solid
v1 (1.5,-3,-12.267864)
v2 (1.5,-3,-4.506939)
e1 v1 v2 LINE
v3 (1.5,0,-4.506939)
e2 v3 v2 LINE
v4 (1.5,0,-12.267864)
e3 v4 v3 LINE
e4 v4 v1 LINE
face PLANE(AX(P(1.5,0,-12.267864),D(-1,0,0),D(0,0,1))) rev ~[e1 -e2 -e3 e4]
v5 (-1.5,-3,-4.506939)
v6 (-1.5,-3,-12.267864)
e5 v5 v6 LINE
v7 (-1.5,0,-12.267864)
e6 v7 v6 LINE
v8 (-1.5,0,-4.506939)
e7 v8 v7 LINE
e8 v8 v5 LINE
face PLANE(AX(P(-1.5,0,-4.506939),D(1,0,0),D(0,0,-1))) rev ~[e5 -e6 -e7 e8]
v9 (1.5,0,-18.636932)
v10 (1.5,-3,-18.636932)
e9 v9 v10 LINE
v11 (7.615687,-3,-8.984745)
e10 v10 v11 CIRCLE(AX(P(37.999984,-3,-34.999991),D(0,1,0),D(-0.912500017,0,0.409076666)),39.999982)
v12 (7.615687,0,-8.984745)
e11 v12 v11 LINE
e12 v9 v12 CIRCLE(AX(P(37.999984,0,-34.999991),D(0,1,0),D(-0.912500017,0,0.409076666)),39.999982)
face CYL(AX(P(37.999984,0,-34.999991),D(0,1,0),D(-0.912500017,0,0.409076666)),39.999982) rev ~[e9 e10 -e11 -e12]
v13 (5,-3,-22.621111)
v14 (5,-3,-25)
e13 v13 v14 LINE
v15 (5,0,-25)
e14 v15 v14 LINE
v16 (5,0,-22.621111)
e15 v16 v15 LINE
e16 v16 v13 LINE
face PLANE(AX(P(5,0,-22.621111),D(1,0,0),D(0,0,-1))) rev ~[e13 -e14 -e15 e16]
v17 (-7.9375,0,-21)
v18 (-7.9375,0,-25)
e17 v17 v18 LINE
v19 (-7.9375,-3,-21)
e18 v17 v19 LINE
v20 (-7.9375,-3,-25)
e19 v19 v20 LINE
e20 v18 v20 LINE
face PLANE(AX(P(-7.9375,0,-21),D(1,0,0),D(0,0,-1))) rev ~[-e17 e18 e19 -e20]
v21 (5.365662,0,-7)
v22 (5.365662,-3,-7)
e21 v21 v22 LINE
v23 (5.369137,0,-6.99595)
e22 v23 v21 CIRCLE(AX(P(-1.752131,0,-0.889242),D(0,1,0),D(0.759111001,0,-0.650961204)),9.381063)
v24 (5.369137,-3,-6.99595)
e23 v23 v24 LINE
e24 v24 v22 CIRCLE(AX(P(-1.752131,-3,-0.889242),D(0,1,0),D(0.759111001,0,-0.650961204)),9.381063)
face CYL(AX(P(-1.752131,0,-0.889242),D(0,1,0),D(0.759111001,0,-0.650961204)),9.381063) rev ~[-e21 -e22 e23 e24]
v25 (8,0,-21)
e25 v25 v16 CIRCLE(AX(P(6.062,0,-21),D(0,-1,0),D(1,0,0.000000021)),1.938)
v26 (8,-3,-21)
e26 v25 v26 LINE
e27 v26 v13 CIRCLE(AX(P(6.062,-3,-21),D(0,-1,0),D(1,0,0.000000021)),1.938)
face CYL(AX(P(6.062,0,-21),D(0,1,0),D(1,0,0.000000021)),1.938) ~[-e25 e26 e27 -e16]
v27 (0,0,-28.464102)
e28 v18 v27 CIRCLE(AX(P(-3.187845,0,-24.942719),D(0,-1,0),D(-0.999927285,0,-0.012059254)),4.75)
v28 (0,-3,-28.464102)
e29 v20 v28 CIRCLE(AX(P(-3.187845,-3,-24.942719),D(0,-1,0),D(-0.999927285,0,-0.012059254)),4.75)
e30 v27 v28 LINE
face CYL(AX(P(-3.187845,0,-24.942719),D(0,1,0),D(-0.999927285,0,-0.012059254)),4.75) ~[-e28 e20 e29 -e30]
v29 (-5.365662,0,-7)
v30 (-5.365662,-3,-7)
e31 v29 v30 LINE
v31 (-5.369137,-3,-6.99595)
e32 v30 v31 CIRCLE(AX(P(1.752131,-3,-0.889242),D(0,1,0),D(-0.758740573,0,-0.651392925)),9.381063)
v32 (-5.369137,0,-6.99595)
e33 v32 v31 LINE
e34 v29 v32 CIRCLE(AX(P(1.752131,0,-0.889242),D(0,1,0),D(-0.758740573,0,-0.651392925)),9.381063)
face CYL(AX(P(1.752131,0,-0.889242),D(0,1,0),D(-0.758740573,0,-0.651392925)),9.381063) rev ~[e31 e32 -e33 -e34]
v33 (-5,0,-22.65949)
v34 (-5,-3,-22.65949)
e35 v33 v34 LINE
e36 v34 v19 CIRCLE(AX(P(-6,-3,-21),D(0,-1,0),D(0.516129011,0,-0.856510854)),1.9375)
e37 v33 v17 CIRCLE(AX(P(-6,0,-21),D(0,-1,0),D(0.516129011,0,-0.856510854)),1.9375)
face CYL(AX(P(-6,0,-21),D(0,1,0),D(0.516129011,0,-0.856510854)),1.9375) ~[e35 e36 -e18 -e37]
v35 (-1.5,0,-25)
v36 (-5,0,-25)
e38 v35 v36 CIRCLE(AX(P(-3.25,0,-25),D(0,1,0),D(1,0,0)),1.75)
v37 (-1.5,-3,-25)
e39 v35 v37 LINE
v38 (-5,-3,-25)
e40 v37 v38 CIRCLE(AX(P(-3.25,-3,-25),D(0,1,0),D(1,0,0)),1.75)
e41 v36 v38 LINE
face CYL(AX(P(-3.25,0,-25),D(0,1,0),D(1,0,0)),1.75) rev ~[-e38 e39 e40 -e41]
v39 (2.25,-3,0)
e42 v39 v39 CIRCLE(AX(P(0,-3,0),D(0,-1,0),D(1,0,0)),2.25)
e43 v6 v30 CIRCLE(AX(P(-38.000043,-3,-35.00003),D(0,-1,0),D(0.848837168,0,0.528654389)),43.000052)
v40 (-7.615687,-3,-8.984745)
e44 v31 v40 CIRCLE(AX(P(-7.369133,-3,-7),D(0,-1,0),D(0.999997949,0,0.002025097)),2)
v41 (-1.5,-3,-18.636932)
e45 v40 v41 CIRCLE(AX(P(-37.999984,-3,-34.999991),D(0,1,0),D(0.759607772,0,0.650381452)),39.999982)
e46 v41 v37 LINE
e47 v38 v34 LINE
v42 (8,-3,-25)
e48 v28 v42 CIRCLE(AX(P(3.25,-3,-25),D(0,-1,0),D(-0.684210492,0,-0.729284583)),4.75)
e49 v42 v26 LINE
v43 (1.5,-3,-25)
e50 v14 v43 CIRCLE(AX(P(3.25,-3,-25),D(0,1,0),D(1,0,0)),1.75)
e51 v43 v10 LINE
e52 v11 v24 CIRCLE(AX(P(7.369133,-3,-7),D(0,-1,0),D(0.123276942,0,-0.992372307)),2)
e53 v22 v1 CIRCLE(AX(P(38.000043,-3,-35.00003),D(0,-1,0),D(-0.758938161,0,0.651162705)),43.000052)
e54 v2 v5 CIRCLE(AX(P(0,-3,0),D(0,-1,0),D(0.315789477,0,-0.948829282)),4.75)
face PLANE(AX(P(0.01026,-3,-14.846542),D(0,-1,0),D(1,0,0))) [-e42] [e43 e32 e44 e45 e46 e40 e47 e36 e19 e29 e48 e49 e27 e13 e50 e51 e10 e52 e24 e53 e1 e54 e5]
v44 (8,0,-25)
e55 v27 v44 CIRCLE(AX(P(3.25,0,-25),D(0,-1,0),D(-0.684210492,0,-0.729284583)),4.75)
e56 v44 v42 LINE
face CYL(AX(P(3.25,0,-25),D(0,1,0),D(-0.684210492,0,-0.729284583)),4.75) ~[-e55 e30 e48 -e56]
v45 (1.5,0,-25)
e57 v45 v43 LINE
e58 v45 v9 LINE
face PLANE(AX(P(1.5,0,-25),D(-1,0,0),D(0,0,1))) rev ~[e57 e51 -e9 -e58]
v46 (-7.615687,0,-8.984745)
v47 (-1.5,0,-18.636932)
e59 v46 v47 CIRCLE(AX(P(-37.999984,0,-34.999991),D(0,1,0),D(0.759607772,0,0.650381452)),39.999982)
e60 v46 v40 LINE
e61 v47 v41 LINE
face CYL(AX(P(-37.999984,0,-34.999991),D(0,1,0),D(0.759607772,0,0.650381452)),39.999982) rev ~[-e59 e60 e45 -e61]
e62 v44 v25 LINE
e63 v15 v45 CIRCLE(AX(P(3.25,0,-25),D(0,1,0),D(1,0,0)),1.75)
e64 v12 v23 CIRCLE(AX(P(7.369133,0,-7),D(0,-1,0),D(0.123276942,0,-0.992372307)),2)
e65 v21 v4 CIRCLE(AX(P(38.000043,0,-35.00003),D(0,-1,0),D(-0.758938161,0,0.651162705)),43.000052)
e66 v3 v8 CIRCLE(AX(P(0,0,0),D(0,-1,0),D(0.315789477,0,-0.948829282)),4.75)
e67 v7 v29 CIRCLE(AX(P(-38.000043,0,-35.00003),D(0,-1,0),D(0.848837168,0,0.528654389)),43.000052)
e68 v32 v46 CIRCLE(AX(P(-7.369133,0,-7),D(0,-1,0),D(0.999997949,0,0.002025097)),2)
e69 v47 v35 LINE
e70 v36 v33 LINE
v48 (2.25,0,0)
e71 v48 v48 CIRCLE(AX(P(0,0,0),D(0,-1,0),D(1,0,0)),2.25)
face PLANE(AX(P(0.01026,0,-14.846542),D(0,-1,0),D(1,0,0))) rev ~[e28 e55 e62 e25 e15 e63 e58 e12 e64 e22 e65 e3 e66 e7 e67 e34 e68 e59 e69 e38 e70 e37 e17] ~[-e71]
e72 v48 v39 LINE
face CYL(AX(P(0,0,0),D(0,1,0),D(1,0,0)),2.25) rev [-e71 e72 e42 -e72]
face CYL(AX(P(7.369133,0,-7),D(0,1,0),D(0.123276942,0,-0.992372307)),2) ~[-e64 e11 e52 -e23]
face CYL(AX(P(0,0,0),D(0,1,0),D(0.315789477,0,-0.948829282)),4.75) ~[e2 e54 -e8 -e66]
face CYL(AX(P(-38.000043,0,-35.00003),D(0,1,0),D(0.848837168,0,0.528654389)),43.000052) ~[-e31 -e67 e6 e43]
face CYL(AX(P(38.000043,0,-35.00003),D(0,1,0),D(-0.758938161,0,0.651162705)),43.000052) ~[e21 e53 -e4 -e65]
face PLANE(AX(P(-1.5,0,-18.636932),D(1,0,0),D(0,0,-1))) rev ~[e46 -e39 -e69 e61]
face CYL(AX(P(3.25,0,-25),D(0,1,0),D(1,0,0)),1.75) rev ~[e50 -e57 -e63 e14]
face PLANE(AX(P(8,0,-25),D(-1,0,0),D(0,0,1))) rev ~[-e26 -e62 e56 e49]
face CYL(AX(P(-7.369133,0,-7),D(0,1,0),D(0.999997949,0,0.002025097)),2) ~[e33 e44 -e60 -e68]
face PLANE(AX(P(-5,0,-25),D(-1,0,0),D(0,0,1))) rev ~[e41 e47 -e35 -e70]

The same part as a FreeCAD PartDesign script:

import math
import FreeCAD as App
import Part
import Sketcher

V = App.Vector

doc = App.newDocument("Part")
params = doc.addObject("Spreadsheet::Sheet", "Params")
for row, (alias, value) in enumerate([
    ("sketch1_radius", "2 mm"),
    ("sketch1_diameter", "4.5 mm"),
    ("sketch1_height", "4 mm"),
    ("sketch1_radius2", "4.75 mm"),
    ("sketch1_radius3", "1.75 mm"),
    ("pad1_length", "3 mm"),
], start=1):
    params.set(f"A{row}", alias)
    params.set(f"B{row}", "=" + value)
    params.setAlias(f"B{row}", alias)

body = doc.addObject("PartDesign::Body", "Body")

# Sketch on XZ plane
sketch1 = doc.addObject("Sketcher::SketchObject", "Sketch")
body.addObject(sketch1)
sketch1.AttachmentSupport = (doc.XZ_Plane, [""])
sketch1.MapMode = "FlatFace"
sketch1.addGeometry([
    Part.LineSegment(V(1.5, -12.268, 0), V(1.5, -4.507, 0)),  # 0
    Part.ArcOfCircle(Part.Circle(V(0, 0, 0), V(0, 0, 1), 4.75), math.radians(-72), math.radians(252)),  # 1
    Part.LineSegment(V(-1.5, -4.507, 0), V(-1.5, -12.268, 0)),  # 2
    Part.ArcOfCircle(Part.Circle(V(-38, -35, 0), V(0, 0, 1), 43), math.radians(31.91), math.radians(40.63)),  # 3
    Part.ArcOfCircle(Part.Circle(V(1.752, -0.889, 0), V(0, 0, 1), 9.381), math.radians(-139.39), math.radians(-139.35)),  # 4
    Part.ArcOfCircle(Part.Circle(V(-7.369, -7, 0), V(0, 0, 1), 2), math.radians(0), math.radians(263)),  # 5
    Part.ArcOfCircle(Part.Circle(V(-38, -35, 0), V(0, 0, 1), 40), math.radians(24.15), math.radians(40.57)),  # 6
    Part.LineSegment(V(-1.5, -18.637, 0), V(-1.5, -25, 0)),  # 7
    Part.ArcOfCircle(Part.Circle(V(-3.25, -25, 0), V(0, 0, 1), 1.75), math.radians(180), math.radians(360)),  # 8
    Part.LineSegment(V(-5, -25, 0), V(-5, -22.659, 0)),  # 9
    Part.ArcOfCircle(Part.Circle(V(-6, -21, 0), V(0, 0, 1), 1.938), math.radians(-59), math.radians(180)),  # 10
    Part.LineSegment(V(-7.938, -21, 0), V(-7.938, -25, 0)),  # 11
    Part.ArcOfCircle(Part.Circle(V(-3.188, -24.943, 0), V(0, 0, 1), 4.75), math.radians(-179), math.radians(-48)),  # 12
    Part.ArcOfCircle(Part.Circle(V(3.25, -25, 0), V(0, 0, 1), 4.75), math.radians(-133), math.radians(0)),  # 13
    Part.LineSegment(V(8, -25, 0), V(8, -21, 0)),  # 14
    Part.ArcOfCircle(Part.Circle(V(6.062, -21, 0), V(0, 0, 1), 1.938), math.radians(0), math.radians(237)),  # 15
    Part.LineSegment(V(5, -22.621, 0), V(5, -25, 0)),  # 16
    Part.ArcOfCircle(Part.Circle(V(3.25, -25, 0), V(0, 0, 1), 1.75), math.radians(180), math.radians(360)),  # 17
    Part.LineSegment(V(1.5, -25, 0), V(1.5, -18.637, 0)),  # 18
    Part.ArcOfCircle(Part.Circle(V(38, -35, 0), V(0, 0, 1), 40), math.radians(139.43), math.radians(155.85)),  # 19
    Part.ArcOfCircle(Part.Circle(V(7.369, -7, 0), V(0, 0, 1), 2), math.radians(-83), math.radians(180)),  # 20
    Part.ArcOfCircle(Part.Circle(V(-1.752, -0.889, 0), V(0, 0, 1), 9.381), math.radians(-40.65), math.radians(-40.61)),  # 21
    Part.ArcOfCircle(Part.Circle(V(38, -35, 0), V(0, 0, 1), 43), math.radians(139.37), math.radians(148.09)),  # 22
    Part.Circle(V(0, 0, 0), V(0, 0, 1), 2.25),  # 23
], False)
sketch1.addConstraint([
    Sketcher.Constraint("Coincident", 0, 2, 1, 1),
    Sketcher.Constraint("Coincident", 1, 2, 2, 1),
    Sketcher.Constraint("Coincident", 2, 2, 3, 1),
    Sketcher.Constraint("Coincident", 3, 2, 4, 2),
    Sketcher.Constraint("Coincident", 4, 1, 5, 1),
    Sketcher.Constraint("Coincident", 5, 2, 6, 2),
    Sketcher.Constraint("Coincident", 6, 1, 7, 1),
    Sketcher.Constraint("Tangent", 7, 2, 8, 2),
    Sketcher.Constraint("Tangent", 8, 1, 9, 1),
    Sketcher.Constraint("Coincident", 9, 2, 10, 1),
    Sketcher.Constraint("Tangent", 10, 2, 11, 1),
    Sketcher.Constraint("Coincident", 11, 2, 12, 1),
    Sketcher.Constraint("Coincident", 12, 2, 13, 1),
    Sketcher.Constraint("Tangent", 13, 2, 14, 1),
    Sketcher.Constraint("Tangent", 14, 2, 15, 1),
    Sketcher.Constraint("Coincident", 15, 2, 16, 1),
    Sketcher.Constraint("Tangent", 16, 2, 17, 2),
    Sketcher.Constraint("Tangent", 17, 1, 18, 1),
    Sketcher.Constraint("Coincident", 18, 2, 19, 2),
    Sketcher.Constraint("Coincident", 19, 1, 20, 1),
    Sketcher.Constraint("Coincident", 20, 2, 21, 2),
    Sketcher.Constraint("Coincident", 21, 1, 22, 1),
    Sketcher.Constraint("Coincident", 22, 2, 0, 1),
    Sketcher.Constraint("Vertical", 0),
    Sketcher.Constraint("Vertical", 2),
    Sketcher.Constraint("Vertical", 7),
    Sketcher.Constraint("Vertical", 9),
    Sketcher.Constraint("Vertical", 11),
    Sketcher.Constraint("Vertical", 14),
    Sketcher.Constraint("Vertical", 16),
    Sketcher.Constraint("Vertical", 18),
    Sketcher.Constraint("Coincident", 1, 3, -1, 1),
    Sketcher.Constraint("Coincident", 23, 3, -1, 1),
    Sketcher.Constraint("Coincident", 17, 3, 13, 3),
    Sketcher.Constraint("Equal", 1, 12),
    Sketcher.Constraint("Equal", 12, 13),
    Sketcher.Constraint("Equal", 8, 17),
    Sketcher.Constraint("Equal", 6, 19),
    Sketcher.Constraint("Equal", 5, 20),
    Sketcher.Constraint("Equal", 4, 21),
    Sketcher.Constraint("Equal", 3, 22),
    Sketcher.Constraint("Symmetric", 8, 3, 13, 3, -2),
    Sketcher.Constraint("Symmetric", 6, 3, 19, 3, -2),
    Sketcher.Constraint("Symmetric", 5, 3, 20, 3, -2),
    Sketcher.Constraint("Symmetric", 4, 3, 21, 3, -2),
    Sketcher.Constraint("Symmetric", 3, 3, 22, 3, -2),
    Sketcher.Constraint("PointOnObject", 12, 2, -2),
    Sketcher.Constraint("Horizontal", 10, 3, 15, 3),
    Sketcher.Constraint("Horizontal", 0, 2, 1, 2),
    Sketcher.Constraint("Horizontal", 20, 3, 3, 2),
    Sketcher.Constraint("Horizontal", 8, 1, 11, 2),
    Sketcher.Constraint("Vertical", 2, 2, 6, 1),
    Sketcher.Constraint("Radius", 5, 2.0),
    Sketcher.Constraint("Diameter", 23, 4.5),
    Sketcher.Constraint("DistanceY", 11, 2, 11, 1, 4.0),
    Sketcher.Constraint("Radius", 1, 4.75),
    Sketcher.Constraint("Radius", 8, 1.75),
    Sketcher.Constraint("DistanceY", 5, 3, -1, 1, 7.0),
    Sketcher.Constraint("DistanceY", 8, 3, -1, 1, 25.0),
    Sketcher.Constraint("DistanceX", 10, 3, -1, 1, 6.0),
    Sketcher.Constraint("DistanceX", 8, 1, -1, 1, 5.0),
    Sketcher.Constraint("Radius", 15, 1.938),
    Sketcher.Constraint("Radius", 10, 1.9375),
    Sketcher.Constraint("Radius", 6, 39.999982),
    Sketcher.Constraint("Radius", 3, 43.000052),
    Sketcher.Constraint("Radius", 4, 9.381063),
    Sketcher.Constraint("DistanceX", 4, 3, 20, 3, 5.617002),
    Sketcher.Constraint("DistanceY", 0, 1, 0, 2, 7.760925),
    Sketcher.Constraint("DistanceY", 7, 2, 7, 1, 6.363068),
    Sketcher.Constraint("DistanceY", 3, 3, -1, 1, 35.00003),
    Sketcher.Constraint("DistanceX", -1, 1, 4, 3, 1.752131),
    Sketcher.Constraint("DistanceY", 6, 3, -1, 1, 34.999991),
])
sketch1.setExpression("Constraints[52]", "Params.sketch1_radius")
sketch1.setExpression("Constraints[53]", "Params.sketch1_diameter")
sketch1.setExpression("Constraints[54]", "Params.sketch1_height")
sketch1.setExpression("Constraints[55]", "Params.sketch1_radius2")
sketch1.setExpression("Constraints[56]", "Params.sketch1_radius3")
pad1 = doc.addObject("PartDesign::Pad", "Pad")
body.addObject(pad1)
pad1.Profile = sketch1
pad1.setExpression("Length", "Params.pad1_length")

doc.recompute()
